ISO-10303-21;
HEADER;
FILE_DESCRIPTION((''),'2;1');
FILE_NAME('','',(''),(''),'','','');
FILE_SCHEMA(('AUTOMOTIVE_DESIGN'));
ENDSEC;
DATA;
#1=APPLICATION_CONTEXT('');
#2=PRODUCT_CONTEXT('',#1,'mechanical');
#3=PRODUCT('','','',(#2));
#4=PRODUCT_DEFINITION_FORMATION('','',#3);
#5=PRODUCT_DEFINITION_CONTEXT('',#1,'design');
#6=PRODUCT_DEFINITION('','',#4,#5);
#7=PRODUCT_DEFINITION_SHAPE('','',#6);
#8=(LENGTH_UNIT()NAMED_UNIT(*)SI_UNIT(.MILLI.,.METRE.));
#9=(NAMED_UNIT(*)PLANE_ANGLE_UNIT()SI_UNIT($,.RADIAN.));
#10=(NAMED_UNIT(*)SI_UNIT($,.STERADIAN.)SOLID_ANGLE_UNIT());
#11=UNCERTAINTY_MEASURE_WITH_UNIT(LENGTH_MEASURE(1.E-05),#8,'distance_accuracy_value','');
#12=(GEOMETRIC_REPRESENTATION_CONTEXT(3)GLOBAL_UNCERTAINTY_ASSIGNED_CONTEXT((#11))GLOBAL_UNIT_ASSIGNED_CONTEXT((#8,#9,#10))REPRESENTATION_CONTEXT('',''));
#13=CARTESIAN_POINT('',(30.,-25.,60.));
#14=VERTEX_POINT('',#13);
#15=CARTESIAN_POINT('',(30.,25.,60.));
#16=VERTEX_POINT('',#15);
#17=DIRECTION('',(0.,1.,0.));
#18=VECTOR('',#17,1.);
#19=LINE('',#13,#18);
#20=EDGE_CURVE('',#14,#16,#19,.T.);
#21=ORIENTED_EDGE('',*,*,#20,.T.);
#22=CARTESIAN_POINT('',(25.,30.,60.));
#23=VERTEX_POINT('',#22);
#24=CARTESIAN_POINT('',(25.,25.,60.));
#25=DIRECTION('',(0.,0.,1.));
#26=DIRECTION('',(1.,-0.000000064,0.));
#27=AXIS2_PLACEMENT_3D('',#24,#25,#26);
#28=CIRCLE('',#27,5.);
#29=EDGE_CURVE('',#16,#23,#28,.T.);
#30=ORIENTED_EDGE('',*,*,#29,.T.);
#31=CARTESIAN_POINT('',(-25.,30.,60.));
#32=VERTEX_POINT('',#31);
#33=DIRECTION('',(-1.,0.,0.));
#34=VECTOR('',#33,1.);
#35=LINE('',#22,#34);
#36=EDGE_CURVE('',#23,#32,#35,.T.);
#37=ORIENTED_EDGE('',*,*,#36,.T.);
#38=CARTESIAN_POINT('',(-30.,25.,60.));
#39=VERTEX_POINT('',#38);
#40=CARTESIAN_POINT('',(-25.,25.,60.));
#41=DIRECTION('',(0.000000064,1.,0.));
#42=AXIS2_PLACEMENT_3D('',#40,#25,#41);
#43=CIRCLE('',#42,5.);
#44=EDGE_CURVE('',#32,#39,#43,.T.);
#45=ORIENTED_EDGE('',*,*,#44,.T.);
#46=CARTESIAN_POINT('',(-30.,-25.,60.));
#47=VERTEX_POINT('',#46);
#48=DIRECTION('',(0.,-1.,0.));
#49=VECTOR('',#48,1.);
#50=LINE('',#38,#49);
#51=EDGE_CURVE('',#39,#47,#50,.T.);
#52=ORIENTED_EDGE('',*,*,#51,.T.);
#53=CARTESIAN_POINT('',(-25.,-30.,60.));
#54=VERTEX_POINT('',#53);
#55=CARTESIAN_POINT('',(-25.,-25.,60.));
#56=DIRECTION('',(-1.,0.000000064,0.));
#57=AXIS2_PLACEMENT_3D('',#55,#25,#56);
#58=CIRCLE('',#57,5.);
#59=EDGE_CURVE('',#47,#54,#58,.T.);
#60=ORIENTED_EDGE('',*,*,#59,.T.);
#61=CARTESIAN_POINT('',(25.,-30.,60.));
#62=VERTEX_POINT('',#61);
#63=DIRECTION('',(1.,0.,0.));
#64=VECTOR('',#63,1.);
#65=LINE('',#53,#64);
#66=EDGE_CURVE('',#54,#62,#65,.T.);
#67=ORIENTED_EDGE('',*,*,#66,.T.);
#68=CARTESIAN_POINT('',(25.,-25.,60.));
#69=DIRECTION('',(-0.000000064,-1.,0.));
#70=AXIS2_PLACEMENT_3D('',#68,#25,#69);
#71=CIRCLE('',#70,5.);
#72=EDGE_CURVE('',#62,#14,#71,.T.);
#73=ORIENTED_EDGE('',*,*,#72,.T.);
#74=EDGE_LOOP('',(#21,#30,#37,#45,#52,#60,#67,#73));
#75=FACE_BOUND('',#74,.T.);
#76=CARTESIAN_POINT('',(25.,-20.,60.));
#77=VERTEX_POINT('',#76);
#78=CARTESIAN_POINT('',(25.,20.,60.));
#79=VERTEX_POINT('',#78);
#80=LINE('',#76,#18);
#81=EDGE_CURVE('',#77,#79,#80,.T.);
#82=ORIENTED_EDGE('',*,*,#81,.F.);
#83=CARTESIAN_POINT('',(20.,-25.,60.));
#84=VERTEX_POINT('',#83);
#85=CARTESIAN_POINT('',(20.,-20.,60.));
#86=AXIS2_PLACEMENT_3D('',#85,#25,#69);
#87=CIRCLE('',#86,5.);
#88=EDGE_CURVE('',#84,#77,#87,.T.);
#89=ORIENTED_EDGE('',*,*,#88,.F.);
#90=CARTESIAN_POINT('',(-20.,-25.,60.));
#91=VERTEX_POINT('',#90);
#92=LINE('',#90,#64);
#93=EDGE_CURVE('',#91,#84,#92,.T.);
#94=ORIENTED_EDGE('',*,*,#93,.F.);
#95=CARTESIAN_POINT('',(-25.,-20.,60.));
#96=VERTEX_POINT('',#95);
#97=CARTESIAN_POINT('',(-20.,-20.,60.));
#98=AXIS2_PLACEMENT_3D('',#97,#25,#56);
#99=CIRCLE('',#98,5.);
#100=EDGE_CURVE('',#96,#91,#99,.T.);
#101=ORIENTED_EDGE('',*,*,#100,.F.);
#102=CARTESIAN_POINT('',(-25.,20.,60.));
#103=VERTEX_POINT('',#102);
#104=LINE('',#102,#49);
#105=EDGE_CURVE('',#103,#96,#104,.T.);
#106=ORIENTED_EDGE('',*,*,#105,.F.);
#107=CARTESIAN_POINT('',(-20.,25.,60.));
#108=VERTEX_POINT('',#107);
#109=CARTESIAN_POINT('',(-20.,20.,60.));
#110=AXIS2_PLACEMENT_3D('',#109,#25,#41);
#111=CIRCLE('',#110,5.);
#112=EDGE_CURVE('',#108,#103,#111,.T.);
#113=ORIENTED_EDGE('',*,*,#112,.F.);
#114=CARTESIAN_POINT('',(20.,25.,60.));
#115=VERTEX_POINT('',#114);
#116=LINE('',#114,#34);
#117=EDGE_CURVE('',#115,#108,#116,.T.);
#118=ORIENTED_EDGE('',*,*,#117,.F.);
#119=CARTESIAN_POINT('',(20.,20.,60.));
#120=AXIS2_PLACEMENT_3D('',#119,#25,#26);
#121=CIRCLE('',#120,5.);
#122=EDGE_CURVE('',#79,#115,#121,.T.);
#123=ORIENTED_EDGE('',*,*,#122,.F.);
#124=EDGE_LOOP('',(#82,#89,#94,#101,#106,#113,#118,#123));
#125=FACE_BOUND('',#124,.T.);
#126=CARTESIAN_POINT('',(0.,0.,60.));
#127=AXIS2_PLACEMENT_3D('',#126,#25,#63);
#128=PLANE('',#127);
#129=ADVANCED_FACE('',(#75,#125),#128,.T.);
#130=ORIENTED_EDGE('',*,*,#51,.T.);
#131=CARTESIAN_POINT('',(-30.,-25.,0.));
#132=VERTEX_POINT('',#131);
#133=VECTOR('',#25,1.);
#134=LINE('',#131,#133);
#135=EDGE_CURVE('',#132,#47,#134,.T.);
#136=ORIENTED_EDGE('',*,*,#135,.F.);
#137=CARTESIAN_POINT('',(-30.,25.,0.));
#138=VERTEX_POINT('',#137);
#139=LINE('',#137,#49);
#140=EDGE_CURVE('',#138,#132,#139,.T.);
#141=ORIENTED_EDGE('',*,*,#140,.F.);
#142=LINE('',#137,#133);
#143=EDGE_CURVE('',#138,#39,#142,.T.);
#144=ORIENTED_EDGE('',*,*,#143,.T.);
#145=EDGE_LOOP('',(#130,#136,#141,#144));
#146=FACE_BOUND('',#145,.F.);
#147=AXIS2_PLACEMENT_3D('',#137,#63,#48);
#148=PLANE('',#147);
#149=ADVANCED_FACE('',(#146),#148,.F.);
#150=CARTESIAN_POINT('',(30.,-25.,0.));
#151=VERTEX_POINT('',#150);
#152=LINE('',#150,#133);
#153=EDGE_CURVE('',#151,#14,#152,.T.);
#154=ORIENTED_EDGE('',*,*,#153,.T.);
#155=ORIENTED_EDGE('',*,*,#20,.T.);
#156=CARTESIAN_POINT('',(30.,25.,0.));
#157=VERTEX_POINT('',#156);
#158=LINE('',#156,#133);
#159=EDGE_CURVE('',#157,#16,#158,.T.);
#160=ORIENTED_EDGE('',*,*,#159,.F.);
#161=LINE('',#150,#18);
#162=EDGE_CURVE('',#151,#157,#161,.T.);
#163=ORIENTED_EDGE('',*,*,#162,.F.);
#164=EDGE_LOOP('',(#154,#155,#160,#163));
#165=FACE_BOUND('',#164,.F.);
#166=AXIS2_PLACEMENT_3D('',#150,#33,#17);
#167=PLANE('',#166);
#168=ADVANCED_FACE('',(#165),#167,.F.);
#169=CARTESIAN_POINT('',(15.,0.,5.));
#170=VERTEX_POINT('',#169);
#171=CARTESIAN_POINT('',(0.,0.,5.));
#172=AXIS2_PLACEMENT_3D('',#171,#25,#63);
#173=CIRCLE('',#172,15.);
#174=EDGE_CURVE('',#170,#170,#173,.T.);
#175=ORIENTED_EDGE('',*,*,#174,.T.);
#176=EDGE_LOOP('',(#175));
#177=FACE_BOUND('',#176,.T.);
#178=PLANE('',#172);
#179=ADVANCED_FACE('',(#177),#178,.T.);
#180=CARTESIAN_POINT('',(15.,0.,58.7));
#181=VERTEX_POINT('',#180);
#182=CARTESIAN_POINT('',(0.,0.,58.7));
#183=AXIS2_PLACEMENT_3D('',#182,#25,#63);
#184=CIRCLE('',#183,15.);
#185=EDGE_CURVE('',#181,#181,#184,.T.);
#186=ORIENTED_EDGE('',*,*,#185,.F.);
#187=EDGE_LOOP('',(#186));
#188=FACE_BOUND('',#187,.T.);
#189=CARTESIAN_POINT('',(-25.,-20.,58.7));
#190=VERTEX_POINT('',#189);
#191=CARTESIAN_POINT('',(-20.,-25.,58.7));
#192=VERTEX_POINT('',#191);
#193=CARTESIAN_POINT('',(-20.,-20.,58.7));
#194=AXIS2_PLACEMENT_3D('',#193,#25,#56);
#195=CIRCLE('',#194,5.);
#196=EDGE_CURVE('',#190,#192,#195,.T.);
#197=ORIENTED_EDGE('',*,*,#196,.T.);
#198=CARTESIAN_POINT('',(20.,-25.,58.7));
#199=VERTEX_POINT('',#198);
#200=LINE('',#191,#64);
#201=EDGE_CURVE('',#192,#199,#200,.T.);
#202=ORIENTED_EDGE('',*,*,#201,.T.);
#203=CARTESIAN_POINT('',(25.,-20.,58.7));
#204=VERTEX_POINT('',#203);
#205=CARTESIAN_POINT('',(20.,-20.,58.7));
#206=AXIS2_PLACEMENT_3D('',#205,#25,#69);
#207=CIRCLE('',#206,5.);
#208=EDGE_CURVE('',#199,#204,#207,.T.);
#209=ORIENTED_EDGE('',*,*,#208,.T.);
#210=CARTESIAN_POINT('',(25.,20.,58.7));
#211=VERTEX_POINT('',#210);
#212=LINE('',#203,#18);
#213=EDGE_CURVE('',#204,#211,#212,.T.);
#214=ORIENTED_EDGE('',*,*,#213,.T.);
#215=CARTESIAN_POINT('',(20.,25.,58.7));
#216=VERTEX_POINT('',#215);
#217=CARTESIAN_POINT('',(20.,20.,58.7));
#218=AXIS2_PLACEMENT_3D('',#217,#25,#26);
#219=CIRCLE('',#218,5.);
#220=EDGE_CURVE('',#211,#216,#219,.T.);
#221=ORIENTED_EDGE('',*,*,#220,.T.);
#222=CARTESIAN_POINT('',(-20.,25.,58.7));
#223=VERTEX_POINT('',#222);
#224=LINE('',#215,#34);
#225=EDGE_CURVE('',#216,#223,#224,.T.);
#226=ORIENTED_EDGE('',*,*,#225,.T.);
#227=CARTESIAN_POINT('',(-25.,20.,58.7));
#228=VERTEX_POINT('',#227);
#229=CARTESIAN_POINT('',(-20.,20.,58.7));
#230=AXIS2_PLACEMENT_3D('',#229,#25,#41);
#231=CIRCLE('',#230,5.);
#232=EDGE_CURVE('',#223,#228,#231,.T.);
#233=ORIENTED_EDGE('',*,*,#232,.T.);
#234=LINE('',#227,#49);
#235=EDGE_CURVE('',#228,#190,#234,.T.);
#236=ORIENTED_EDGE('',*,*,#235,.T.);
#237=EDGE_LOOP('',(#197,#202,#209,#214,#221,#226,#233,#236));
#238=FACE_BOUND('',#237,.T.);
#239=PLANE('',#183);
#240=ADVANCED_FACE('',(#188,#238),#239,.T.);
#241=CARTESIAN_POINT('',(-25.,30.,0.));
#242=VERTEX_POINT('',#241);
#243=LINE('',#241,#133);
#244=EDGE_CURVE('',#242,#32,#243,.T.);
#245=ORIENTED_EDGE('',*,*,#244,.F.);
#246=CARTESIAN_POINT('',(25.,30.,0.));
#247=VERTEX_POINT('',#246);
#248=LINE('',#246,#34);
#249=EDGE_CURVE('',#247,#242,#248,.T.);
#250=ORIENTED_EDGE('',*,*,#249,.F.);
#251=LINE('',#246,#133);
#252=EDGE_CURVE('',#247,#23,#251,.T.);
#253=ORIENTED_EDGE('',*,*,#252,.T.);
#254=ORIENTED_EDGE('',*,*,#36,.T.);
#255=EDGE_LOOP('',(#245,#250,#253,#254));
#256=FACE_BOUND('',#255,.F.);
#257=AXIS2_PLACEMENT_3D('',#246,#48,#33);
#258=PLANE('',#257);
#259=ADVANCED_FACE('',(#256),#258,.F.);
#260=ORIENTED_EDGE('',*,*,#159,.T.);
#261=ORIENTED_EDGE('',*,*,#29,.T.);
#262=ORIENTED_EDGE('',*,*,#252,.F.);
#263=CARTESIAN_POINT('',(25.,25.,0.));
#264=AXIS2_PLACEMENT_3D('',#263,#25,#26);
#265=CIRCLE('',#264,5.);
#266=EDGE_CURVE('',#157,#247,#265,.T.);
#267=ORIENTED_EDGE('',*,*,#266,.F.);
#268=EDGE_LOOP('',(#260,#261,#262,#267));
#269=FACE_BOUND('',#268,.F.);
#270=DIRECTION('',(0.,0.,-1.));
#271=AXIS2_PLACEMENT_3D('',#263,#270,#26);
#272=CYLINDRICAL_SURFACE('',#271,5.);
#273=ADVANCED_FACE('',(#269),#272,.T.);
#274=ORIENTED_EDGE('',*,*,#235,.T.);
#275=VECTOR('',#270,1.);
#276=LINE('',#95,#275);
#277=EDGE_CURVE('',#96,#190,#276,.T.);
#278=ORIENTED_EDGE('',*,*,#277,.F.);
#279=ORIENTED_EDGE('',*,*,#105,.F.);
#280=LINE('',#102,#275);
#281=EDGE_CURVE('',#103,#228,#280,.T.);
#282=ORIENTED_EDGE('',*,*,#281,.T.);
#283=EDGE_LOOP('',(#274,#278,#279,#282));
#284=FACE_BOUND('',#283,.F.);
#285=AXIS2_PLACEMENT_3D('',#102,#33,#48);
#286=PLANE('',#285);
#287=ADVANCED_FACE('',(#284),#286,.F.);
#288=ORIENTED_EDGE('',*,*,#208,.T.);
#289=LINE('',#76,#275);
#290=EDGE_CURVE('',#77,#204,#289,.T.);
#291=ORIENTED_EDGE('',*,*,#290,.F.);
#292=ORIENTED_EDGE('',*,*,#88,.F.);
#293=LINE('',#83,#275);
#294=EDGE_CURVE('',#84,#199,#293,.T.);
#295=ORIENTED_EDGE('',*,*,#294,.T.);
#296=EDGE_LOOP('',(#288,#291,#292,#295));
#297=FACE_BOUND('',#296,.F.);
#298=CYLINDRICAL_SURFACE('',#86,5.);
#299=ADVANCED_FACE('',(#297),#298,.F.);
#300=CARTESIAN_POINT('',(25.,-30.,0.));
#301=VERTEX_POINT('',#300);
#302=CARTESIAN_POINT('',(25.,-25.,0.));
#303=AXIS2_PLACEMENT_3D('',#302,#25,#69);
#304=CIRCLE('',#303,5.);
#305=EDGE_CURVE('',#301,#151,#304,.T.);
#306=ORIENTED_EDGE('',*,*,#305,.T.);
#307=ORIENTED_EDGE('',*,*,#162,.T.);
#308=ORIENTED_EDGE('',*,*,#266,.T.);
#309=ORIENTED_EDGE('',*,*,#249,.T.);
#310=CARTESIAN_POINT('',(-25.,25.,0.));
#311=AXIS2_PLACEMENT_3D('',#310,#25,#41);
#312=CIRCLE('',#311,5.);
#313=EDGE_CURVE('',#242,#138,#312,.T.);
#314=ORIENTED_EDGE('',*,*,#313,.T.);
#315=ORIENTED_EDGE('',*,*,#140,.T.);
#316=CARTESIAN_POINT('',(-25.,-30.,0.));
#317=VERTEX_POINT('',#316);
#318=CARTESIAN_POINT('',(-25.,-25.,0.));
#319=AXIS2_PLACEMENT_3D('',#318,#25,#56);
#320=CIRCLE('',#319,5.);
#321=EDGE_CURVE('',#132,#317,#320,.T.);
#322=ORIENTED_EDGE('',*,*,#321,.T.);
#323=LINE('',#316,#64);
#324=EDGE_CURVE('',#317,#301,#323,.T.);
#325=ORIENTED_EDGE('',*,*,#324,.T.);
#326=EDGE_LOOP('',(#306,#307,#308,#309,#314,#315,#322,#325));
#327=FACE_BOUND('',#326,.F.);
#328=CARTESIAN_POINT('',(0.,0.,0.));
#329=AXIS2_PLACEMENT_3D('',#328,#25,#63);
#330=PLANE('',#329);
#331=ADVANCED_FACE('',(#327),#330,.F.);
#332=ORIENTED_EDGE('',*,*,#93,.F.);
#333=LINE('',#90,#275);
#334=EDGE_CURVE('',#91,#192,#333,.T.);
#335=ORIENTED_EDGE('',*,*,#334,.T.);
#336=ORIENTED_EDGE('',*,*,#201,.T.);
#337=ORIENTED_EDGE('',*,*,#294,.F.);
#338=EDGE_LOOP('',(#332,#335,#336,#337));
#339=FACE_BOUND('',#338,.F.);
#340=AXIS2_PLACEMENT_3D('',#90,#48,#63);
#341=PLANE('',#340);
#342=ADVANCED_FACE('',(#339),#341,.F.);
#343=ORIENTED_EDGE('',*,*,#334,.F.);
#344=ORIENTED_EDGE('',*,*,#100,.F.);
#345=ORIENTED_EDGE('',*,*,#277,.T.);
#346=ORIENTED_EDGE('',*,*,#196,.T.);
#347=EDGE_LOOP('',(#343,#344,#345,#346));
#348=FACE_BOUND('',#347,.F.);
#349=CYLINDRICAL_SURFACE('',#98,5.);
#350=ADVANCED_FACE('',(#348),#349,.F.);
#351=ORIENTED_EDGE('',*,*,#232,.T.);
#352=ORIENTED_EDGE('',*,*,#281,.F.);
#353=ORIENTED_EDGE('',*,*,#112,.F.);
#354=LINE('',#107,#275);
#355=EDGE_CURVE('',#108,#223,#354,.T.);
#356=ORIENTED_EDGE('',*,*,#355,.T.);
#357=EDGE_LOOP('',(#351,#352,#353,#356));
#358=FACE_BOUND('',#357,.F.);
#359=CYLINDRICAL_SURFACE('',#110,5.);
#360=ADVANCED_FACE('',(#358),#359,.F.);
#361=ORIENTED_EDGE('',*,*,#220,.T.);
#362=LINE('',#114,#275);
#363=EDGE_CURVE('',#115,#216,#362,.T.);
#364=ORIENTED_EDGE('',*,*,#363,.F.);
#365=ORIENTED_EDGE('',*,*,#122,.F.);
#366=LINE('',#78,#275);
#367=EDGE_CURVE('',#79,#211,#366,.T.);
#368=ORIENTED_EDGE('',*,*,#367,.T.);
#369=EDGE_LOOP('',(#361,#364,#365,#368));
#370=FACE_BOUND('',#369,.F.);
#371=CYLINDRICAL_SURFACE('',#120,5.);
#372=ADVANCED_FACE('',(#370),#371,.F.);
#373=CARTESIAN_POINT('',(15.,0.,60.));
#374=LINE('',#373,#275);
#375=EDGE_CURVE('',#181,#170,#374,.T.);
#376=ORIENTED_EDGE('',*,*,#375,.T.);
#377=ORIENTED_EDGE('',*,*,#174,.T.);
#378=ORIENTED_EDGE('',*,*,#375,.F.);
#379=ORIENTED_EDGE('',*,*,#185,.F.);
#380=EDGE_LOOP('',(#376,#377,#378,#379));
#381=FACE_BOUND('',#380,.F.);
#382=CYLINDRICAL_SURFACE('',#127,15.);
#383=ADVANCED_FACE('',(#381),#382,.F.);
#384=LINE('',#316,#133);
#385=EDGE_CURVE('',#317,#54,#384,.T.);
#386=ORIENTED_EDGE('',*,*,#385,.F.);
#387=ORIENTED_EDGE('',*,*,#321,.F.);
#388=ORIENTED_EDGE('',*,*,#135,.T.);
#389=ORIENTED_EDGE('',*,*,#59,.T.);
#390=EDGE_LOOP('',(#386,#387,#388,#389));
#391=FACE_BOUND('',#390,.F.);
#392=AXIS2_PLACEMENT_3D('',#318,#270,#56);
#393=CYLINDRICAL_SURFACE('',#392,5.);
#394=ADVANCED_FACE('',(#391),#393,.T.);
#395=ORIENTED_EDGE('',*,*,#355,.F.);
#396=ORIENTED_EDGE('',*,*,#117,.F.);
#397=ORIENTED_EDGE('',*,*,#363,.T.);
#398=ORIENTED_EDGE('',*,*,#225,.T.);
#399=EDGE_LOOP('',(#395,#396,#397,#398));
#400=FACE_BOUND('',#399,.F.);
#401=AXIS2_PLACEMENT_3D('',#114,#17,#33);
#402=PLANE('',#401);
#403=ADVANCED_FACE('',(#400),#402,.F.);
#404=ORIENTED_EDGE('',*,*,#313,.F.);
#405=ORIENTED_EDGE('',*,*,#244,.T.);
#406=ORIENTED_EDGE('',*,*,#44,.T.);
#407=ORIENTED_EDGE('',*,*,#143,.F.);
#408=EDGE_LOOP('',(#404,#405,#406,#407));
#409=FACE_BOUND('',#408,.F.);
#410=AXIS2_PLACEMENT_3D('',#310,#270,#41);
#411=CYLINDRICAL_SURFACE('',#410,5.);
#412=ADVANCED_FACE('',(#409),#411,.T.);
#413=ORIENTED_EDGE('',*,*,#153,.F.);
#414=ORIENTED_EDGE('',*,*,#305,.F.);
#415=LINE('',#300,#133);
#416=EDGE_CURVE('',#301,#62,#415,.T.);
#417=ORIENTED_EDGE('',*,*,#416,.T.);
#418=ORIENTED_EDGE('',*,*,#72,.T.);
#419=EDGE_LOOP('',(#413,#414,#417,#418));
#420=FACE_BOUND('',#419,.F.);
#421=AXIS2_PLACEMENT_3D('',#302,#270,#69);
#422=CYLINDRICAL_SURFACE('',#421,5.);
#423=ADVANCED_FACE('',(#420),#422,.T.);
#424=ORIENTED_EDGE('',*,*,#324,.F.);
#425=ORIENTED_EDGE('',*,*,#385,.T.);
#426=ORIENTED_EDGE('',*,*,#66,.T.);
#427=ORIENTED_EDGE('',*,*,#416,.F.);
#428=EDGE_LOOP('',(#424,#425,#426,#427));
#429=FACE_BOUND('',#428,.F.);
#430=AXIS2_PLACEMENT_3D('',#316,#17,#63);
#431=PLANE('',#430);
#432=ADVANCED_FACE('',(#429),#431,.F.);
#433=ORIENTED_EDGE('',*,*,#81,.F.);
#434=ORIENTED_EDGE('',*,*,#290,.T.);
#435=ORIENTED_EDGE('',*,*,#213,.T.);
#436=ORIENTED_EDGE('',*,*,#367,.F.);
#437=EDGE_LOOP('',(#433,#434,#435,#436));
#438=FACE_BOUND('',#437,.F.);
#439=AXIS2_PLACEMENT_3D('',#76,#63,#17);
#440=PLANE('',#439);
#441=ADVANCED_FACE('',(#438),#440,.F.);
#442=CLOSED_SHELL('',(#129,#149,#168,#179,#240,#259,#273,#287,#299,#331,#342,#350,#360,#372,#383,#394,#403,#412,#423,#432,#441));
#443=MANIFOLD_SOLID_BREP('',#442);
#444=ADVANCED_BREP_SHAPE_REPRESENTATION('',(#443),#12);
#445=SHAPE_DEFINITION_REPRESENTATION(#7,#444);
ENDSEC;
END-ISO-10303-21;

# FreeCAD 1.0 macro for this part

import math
import FreeCAD as App
import Part
import Sketcher

V = App.Vector

doc = App.newDocument("Part")
params = doc.addObject("Spreadsheet::Sheet", "Params")
for row, (alias, value) in enumerate([
    ("sketch1_radius", "5 mm"),
    ("sketch1_width", "50 mm"),
    ("pad1_length", "60 mm"),
    ("sketch2_diameter", "30 mm"),
    ("sketch2_radius", "5 mm"),
    ("sketch2_width", "40 mm"),
    ("pocket1_length", "1.3 mm"),
    ("sketch3_diameter", "30 mm"),
    ("pocket2_length", "55 mm"),
], start=1):
    params.set(f"A{row}", alias)
    params.set(f"B{row}", "=" + value)
    params.setAlias(f"B{row}", alias)

body = doc.addObject("PartDesign::Body", "Body")

sketch1 = doc.addObject("Sketcher::SketchObject", "Sketch")
body.addObject(sketch1)
sketch1.AttachmentSupport = (doc.XY_Plane, [""])
sketch1.MapMode = "FlatFace"
sketch1.addGeometry([
    Part.LineSegment(V(25, 30, 0), V(-25, 30, 0)),
    Part.ArcOfCircle(Part.Circle(V(-25, 25, 0), V(0, 0, 1), 5), math.radians(90), math.radians(180)),
    Part.LineSegment(V(-30, 25, 0), V(-30, -25, 0)),
    Part.ArcOfCircle(Part.Circle(V(-25, -25, 0), V(0, 0, 1), 5), math.radians(180), math.radians(270)),
    Part.LineSegment(V(-25, -30, 0), V(25, -30, 0)),
    Part.ArcOfCircle(Part.Circle(V(25, -25, 0), V(0, 0, 1), 5), math.radians(-90), math.radians(0)),
    Part.LineSegment(V(30, -25, 0), V(30, 25, 0)),
    Part.ArcOfCircle(Part.Circle(V(25, 25, 0), V(0, 0, 1), 5), math.radians(0), math.radians(90)),
], False)
sketch1.addConstraint([
    Sketcher.Constraint("Tangent", 0, 2, 1, 1),
    Sketcher.Constraint("Tangent", 1, 2, 2, 1),
    Sketcher.Constraint("Tangent", 2, 2, 3, 1),
    Sketcher.Constraint("Tangent", 3, 2, 4, 1),
    Sketcher.Constraint("Tangent", 4, 2, 5, 1),
    Sketcher.Constraint("Tangent", 5, 2, 6, 1),
    Sketcher.Constraint("Tangent", 6, 2, 7, 1),
    Sketcher.Constraint("Tangent", 7, 2, 0, 1),
    Sketcher.Constraint("Horizontal", 0),
    Sketcher.Constraint("Vertical", 2),
    Sketcher.Constraint("Horizontal", 4),
    Sketcher.Constraint("Vertical", 6),
    Sketcher.Constraint("Equal", 1, 3),
    Sketcher.Constraint("Equal", 3, 5),
    Sketcher.Constraint("Equal", 5, 7),
    Sketcher.Constraint("Symmetric", 1, 3, 5, 3, -1, 1),
    Sketcher.Constraint("Equal", 4, 2),
    Sketcher.Constraint("Radius", 1, 5.0),
    Sketcher.Constraint("DistanceX", 0, 2, 0, 1, 50.0),
])
sketch1.setExpression("Constraints[17]", "Params.sketch1_radius")
sketch1.setExpression("Constraints[18]", "Params.sketch1_width")
pad1 = doc.addObject("PartDesign::Pad", "Pad")
body.addObject(pad1)
pad1.Profile = sketch1
pad1.setExpression("Length", "Params.pad1_length")

sketch2 = doc.addObject("Sketcher::SketchObject", "Sketch001")
body.addObject(sketch2)
sketch2.AttachmentSupport = (doc.XY_Plane, [""])
sketch2.MapMode = "FlatFace"
sketch2.AttachmentOffset = App.Placement(V(0, 0, 60), App.Rotation())
sketch2.addGeometry([
    Part.LineSegment(V(20, 25, 0), V(-20, 25, 0)),
    Part.ArcOfCircle(Part.Circle(V(-20, 20, 0), V(0, 0, 1), 5), math.radians(90), math.radians(180)),
    Part.LineSegment(V(-25, 20, 0), V(-25, -20, 0)),
    Part.ArcOfCircle(Part.Circle(V(-20, -20, 0), V(0, 0, 1), 5), math.radians(180), math.radians(270)),
    Part.LineSegment(V(-20, -25, 0), V(20, -25, 0)),
    Part.ArcOfCircle(Part.Circle(V(20, -20, 0), V(0, 0, 1), 5), math.radians(-90), math.radians(0)),
    Part.LineSegment(V(25, -20, 0), V(25, 20, 0)),
    Part.ArcOfCircle(Part.Circle(V(20, 20, 0), V(0, 0, 1), 5), math.radians(0), math.radians(90)),
    Part.Circle(V(0, 0, 0), V(0, 0, 1), 15),
], False)
sketch2.addConstraint([
    Sketcher.Constraint("Tangent", 0, 2, 1, 1),
    Sketcher.Constraint("Tangent", 1, 2, 2, 1),
    Sketcher.Constraint("Tangent", 2, 2, 3, 1),
    Sketcher.Constraint("Tangent", 3, 2, 4, 1),
    Sketcher.Constraint("Tangent", 4, 2, 5, 1),
    Sketcher.Constraint("Tangent", 5, 2, 6, 1),
    Sketcher.Constraint("Tangent", 6, 2, 7, 1),
    Sketcher.Constraint("Tangent", 7, 2, 0, 1),
    Sketcher.Constraint("Horizontal", 0),
    Sketcher.Constraint("Vertical", 2),
    Sketcher.Constraint("Horizontal", 4),
    Sketcher.Constraint("Vertical", 6),
    Sketcher.Constraint("Coincident", 8, 3, -1, 1),
    Sketcher.Constraint("Equal", 1, 3),
    Sketcher.Constraint("Equal", 3, 5),
    Sketcher.Constraint("Equal", 5, 7),
    Sketcher.Constraint("Symmetric", 1, 3, 5, 3, -1, 1),
    Sketcher.Constraint("Equal", 4, 2),
    Sketcher.Constraint("Diameter", 8, 30.0),
    Sketcher.Constraint("Radius", 1, 5.0),
    Sketcher.Constraint("DistanceX", 0, 2, 0, 1, 40.0),
])
sketch2.setExpression("Constraints[18]", "Params.sketch2_diameter")
sketch2.setExpression("Constraints[19]", "Params.sketch2_radius")
sketch2.setExpression("Constraints[20]", "Params.sketch2_width")
pocket1 = doc.addObject("PartDesign::Pocket", "Pocket")
body.addObject(pocket1)
pocket1.Profile = sketch2
pocket1.setExpression("Length", "Params.pocket1_length")

sketch3 = doc.addObject("Sketcher::SketchObject", "Sketch002")
body.addObject(sketch3)
sketch3.AttachmentSupport = (doc.XY_Plane, [""])
sketch3.MapMode = "FlatFace"
sketch3.AttachmentOffset = App.Placement(V(0, 0, 60), App.Rotation())
sketch3.addGeometry(Part.Circle(V(0, 0, 0), V(0, 0, 1), 15), False)
sketch3.addConstraint([
    Sketcher.Constraint("Coincident", 0, 3, -1, 1),
    Sketcher.Constraint("Diameter", 0, 30.0),
])
sketch3.setExpression("Constraints[1]", "Params.sketch3_diameter")
pocket2 = doc.addObject("PartDesign::Pocket", "Pocket001")
body.addObject(pocket2)
pocket2.Profile = sketch3
pocket2.setExpression("Length", "Params.pocket2_length")

doc.recompute()
